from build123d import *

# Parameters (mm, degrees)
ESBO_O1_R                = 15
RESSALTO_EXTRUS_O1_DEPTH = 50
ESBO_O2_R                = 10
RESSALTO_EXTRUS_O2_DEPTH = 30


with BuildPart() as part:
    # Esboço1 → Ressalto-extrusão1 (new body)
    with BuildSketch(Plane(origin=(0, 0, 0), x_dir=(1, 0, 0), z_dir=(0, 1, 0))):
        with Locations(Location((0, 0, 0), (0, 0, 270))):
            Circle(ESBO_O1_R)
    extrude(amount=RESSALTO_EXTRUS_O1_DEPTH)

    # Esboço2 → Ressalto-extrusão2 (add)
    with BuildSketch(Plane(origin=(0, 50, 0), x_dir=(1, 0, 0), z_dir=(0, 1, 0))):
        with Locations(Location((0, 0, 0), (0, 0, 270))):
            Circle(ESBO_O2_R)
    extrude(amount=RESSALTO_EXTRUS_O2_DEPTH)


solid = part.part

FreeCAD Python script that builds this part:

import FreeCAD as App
import Part
import Sketcher
Q = App.Units.Quantity

doc = App.newDocument("Part")
body = doc.addObject("PartDesign::Body", "Body")

# Sketch on XZ plane
sketch1 = body.newObject("Sketcher::SketchObject", "Sketch")
sketch1.AttachmentSupport = (doc.getObject("XZ_Plane"), [""])
sketch1.MapMode = "FlatFace"
sketch1.addGeometry(Part.Circle(App.Vector(0, 0, 0), App.Vector(0, 0, 1), 15), False)
sketch1.addConstraint([
    Sketcher.Constraint("Coincident", 0, 3, -1, 1),
    Sketcher.Constraint("Diameter", 0, Q("30 mm")),
])
pad1 = body.newObject("PartDesign::Pad", "Pad")
pad1.Profile = sketch1
pad1.Length = 50
pad1.Reversed = True

# Sketch on XZ plane
sketch2 = body.newObject("Sketcher::SketchObject", "Sketch001")
sketch2.AttachmentSupport = (doc.getObject("XZ_Plane"), [""])
sketch2.MapMode = "FlatFace"
sketch2.AttachmentOffset = App.Placement(App.Vector(0, 0, -50), App.Rotation())
sketch2.addGeometry(Part.Circle(App.Vector(0, 0, 0), App.Vector(0, 0, 1), 10), False)
sketch2.addConstraint([
    Sketcher.Constraint("Coincident", 0, 3, -1, 1),
    Sketcher.Constraint("Diameter", 0, Q("20 mm")),
])
pad2 = body.newObject("PartDesign::Pad", "Pad001")
pad2.Profile = sketch2
pad2.Length = 30
pad2.Reversed = True

doc.recompute()
